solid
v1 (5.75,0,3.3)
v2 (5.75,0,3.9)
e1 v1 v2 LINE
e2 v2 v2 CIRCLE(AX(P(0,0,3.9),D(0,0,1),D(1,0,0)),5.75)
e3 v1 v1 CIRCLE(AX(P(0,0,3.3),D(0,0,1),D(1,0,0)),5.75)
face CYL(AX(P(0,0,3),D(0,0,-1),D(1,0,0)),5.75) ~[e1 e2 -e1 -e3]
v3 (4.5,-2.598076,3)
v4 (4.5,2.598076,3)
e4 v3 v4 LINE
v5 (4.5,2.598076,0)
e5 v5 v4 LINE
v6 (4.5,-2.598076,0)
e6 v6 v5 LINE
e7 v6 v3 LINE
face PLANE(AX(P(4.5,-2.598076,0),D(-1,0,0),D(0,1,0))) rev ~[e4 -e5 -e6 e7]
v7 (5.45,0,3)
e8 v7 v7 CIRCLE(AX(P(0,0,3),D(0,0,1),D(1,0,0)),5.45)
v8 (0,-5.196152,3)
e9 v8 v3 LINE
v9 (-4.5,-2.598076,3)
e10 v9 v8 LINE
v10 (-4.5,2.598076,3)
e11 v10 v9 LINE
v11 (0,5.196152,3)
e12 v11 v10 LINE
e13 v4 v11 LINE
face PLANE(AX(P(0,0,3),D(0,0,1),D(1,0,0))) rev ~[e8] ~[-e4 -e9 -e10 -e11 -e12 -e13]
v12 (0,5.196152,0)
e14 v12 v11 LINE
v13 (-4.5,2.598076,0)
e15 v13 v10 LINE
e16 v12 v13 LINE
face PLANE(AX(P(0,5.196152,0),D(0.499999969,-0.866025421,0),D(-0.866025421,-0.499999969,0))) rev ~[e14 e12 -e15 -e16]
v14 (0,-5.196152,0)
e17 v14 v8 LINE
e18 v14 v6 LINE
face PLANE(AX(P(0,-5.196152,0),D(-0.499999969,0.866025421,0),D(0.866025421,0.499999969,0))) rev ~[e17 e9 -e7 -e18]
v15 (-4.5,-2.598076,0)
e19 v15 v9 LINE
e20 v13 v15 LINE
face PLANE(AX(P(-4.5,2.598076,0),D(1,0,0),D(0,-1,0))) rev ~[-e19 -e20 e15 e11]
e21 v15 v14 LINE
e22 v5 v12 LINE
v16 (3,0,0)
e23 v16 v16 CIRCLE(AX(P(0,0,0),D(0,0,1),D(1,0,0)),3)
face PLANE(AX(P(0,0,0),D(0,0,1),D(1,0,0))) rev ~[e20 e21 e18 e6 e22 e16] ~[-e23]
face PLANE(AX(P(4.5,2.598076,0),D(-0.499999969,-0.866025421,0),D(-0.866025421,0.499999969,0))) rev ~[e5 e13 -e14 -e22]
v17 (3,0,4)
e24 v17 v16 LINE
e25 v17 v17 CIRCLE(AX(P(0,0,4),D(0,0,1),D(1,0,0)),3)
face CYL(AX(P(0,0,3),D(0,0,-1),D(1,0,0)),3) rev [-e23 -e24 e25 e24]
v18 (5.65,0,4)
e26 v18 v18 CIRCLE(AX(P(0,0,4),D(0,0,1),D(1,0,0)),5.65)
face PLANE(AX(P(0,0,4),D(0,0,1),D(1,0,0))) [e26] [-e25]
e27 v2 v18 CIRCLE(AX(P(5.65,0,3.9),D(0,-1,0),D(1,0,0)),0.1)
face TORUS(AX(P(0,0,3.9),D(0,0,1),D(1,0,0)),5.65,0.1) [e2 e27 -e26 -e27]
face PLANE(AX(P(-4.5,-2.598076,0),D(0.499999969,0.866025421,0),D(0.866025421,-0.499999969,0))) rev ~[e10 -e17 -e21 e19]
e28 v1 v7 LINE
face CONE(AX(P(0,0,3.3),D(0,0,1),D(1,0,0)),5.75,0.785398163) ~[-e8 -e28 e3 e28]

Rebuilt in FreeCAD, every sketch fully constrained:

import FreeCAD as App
import Part
import Sketcher
Q = App.Units.Quantity


def edges_at(feature, points):
    """Names of the edges that pass closest to the given points."""
    edges = feature.Shape.Edges
    near = lambda p: min(range(len(edges)), key=lambda i: edges[i].distToShape(Part.Vertex(*p))[0])
    return sorted({f"Edge{near(p) + 1}" for p in points})


def add_polygon(sketch, points):
    """Adds a closed chain of lines whose ends are joined by coincident constraints."""
    first, n = sketch.GeometryCount, len(points)
    for a, b in zip(points, points[1:] + points[:1]):
        sketch.addGeometry(Part.LineSegment(App.Vector(*a, 0), App.Vector(*b, 0)), False)
    for i in range(n):
        sketch.addConstraint(Sketcher.Constraint("Coincident", first + i, 2, first + (i + 1) % n, 1))

doc = App.newDocument("Part")
body = doc.addObject("PartDesign::Body", "Body")

sketch1 = doc.addObject("Sketcher::SketchObject", "Sketch")
body.addObject(sketch1)
sketch1.AttachmentSupport = (doc.XY_Plane, [""])
sketch1.MapMode = "FlatFace"
add_polygon(sketch1, [(4.5, -2.598076), (4.5, 2.598076), (0, 5.196152), (-4.5, 2.598076), (-4.5, -2.598076), (0, -5.196152)])
sketch1.addGeometry(Part.Circle(App.Vector(0, 0, 0), App.Vector(0, 0, 1), 3), False)
sketch1.addConstraint([
    Sketcher.Constraint("Vertical", 0),
    Sketcher.Constraint("Vertical", 3),
    Sketcher.Constraint("Coincident", 6, 3, -1, 1),
    Sketcher.Constraint("Symmetric", 0, 2, 3, 2, -1, 1),
    Sketcher.Constraint("Symmetric", 1, 2, 4, 2, -1, 1),
    Sketcher.Constraint("PointOnObject", 1, 2, -2),
    Sketcher.Constraint("Parallel", 2, 5),
    Sketcher.Constraint("Horizontal", 0, 2, 2, 2),
    Sketcher.Constraint("Diameter", 6, 6.0),
    Sketcher.Constraint("Angle", 1, Q("150.000002 deg")),
    Sketcher.Constraint("DistanceX", 2, 2, 0, 2, 9.0),
    Sketcher.Constraint("DistanceY", 0, 1, 0, 2, 5.196152),
])
pad1 = doc.addObject("PartDesign::Pad", "Pad")
body.addObject(pad1)
pad1.Profile = sketch1
pad1.Length = 3

sketch2 = doc.addObject("Sketcher::SketchObject", "Sketch001")
body.addObject(sketch2)
sketch2.AttachmentSupport = (doc.XY_Plane, [""])
sketch2.MapMode = "FlatFace"
sketch2.AttachmentOffset = App.Placement(App.Vector(0, 0, 3), App.Rotation())
sketch2.addGeometry([
    Part.Circle(App.Vector(0, 0, 0), App.Vector(0, 0, 1), 5.75),
    Part.Circle(App.Vector(0, 0, 0), App.Vector(0, 0, 1), 3),
], False)
sketch2.addConstraint([
    Sketcher.Constraint("Coincident", 0, 3, -1, 1),
    Sketcher.Constraint("Coincident", 1, 3, -1, 1),
    Sketcher.Constraint("Diameter", 1, 6.0),
    Sketcher.Constraint("Diameter", 0, 11.5),
])
pad2 = doc.addObject("PartDesign::Pad", "Pad001")
body.addObject(pad2)
pad2.Profile = sketch2
pad2.Length = 1
doc.recompute()

chamfer = doc.addObject("PartDesign::Chamfer", "Chamfer")
body.addObject(chamfer)
chamfer.Base = (pad2, edges_at(pad2, [(-5.75, 0, 3)]))
chamfer.Size = 0.3
doc.recompute()

fillet = doc.addObject("PartDesign::Fillet", "Fillet")
body.addObject(fillet)
fillet.Base = (chamfer, edges_at(chamfer, [(-5.75, 0, 4)]))
fillet.Radius = 0.1

doc.recompute()
